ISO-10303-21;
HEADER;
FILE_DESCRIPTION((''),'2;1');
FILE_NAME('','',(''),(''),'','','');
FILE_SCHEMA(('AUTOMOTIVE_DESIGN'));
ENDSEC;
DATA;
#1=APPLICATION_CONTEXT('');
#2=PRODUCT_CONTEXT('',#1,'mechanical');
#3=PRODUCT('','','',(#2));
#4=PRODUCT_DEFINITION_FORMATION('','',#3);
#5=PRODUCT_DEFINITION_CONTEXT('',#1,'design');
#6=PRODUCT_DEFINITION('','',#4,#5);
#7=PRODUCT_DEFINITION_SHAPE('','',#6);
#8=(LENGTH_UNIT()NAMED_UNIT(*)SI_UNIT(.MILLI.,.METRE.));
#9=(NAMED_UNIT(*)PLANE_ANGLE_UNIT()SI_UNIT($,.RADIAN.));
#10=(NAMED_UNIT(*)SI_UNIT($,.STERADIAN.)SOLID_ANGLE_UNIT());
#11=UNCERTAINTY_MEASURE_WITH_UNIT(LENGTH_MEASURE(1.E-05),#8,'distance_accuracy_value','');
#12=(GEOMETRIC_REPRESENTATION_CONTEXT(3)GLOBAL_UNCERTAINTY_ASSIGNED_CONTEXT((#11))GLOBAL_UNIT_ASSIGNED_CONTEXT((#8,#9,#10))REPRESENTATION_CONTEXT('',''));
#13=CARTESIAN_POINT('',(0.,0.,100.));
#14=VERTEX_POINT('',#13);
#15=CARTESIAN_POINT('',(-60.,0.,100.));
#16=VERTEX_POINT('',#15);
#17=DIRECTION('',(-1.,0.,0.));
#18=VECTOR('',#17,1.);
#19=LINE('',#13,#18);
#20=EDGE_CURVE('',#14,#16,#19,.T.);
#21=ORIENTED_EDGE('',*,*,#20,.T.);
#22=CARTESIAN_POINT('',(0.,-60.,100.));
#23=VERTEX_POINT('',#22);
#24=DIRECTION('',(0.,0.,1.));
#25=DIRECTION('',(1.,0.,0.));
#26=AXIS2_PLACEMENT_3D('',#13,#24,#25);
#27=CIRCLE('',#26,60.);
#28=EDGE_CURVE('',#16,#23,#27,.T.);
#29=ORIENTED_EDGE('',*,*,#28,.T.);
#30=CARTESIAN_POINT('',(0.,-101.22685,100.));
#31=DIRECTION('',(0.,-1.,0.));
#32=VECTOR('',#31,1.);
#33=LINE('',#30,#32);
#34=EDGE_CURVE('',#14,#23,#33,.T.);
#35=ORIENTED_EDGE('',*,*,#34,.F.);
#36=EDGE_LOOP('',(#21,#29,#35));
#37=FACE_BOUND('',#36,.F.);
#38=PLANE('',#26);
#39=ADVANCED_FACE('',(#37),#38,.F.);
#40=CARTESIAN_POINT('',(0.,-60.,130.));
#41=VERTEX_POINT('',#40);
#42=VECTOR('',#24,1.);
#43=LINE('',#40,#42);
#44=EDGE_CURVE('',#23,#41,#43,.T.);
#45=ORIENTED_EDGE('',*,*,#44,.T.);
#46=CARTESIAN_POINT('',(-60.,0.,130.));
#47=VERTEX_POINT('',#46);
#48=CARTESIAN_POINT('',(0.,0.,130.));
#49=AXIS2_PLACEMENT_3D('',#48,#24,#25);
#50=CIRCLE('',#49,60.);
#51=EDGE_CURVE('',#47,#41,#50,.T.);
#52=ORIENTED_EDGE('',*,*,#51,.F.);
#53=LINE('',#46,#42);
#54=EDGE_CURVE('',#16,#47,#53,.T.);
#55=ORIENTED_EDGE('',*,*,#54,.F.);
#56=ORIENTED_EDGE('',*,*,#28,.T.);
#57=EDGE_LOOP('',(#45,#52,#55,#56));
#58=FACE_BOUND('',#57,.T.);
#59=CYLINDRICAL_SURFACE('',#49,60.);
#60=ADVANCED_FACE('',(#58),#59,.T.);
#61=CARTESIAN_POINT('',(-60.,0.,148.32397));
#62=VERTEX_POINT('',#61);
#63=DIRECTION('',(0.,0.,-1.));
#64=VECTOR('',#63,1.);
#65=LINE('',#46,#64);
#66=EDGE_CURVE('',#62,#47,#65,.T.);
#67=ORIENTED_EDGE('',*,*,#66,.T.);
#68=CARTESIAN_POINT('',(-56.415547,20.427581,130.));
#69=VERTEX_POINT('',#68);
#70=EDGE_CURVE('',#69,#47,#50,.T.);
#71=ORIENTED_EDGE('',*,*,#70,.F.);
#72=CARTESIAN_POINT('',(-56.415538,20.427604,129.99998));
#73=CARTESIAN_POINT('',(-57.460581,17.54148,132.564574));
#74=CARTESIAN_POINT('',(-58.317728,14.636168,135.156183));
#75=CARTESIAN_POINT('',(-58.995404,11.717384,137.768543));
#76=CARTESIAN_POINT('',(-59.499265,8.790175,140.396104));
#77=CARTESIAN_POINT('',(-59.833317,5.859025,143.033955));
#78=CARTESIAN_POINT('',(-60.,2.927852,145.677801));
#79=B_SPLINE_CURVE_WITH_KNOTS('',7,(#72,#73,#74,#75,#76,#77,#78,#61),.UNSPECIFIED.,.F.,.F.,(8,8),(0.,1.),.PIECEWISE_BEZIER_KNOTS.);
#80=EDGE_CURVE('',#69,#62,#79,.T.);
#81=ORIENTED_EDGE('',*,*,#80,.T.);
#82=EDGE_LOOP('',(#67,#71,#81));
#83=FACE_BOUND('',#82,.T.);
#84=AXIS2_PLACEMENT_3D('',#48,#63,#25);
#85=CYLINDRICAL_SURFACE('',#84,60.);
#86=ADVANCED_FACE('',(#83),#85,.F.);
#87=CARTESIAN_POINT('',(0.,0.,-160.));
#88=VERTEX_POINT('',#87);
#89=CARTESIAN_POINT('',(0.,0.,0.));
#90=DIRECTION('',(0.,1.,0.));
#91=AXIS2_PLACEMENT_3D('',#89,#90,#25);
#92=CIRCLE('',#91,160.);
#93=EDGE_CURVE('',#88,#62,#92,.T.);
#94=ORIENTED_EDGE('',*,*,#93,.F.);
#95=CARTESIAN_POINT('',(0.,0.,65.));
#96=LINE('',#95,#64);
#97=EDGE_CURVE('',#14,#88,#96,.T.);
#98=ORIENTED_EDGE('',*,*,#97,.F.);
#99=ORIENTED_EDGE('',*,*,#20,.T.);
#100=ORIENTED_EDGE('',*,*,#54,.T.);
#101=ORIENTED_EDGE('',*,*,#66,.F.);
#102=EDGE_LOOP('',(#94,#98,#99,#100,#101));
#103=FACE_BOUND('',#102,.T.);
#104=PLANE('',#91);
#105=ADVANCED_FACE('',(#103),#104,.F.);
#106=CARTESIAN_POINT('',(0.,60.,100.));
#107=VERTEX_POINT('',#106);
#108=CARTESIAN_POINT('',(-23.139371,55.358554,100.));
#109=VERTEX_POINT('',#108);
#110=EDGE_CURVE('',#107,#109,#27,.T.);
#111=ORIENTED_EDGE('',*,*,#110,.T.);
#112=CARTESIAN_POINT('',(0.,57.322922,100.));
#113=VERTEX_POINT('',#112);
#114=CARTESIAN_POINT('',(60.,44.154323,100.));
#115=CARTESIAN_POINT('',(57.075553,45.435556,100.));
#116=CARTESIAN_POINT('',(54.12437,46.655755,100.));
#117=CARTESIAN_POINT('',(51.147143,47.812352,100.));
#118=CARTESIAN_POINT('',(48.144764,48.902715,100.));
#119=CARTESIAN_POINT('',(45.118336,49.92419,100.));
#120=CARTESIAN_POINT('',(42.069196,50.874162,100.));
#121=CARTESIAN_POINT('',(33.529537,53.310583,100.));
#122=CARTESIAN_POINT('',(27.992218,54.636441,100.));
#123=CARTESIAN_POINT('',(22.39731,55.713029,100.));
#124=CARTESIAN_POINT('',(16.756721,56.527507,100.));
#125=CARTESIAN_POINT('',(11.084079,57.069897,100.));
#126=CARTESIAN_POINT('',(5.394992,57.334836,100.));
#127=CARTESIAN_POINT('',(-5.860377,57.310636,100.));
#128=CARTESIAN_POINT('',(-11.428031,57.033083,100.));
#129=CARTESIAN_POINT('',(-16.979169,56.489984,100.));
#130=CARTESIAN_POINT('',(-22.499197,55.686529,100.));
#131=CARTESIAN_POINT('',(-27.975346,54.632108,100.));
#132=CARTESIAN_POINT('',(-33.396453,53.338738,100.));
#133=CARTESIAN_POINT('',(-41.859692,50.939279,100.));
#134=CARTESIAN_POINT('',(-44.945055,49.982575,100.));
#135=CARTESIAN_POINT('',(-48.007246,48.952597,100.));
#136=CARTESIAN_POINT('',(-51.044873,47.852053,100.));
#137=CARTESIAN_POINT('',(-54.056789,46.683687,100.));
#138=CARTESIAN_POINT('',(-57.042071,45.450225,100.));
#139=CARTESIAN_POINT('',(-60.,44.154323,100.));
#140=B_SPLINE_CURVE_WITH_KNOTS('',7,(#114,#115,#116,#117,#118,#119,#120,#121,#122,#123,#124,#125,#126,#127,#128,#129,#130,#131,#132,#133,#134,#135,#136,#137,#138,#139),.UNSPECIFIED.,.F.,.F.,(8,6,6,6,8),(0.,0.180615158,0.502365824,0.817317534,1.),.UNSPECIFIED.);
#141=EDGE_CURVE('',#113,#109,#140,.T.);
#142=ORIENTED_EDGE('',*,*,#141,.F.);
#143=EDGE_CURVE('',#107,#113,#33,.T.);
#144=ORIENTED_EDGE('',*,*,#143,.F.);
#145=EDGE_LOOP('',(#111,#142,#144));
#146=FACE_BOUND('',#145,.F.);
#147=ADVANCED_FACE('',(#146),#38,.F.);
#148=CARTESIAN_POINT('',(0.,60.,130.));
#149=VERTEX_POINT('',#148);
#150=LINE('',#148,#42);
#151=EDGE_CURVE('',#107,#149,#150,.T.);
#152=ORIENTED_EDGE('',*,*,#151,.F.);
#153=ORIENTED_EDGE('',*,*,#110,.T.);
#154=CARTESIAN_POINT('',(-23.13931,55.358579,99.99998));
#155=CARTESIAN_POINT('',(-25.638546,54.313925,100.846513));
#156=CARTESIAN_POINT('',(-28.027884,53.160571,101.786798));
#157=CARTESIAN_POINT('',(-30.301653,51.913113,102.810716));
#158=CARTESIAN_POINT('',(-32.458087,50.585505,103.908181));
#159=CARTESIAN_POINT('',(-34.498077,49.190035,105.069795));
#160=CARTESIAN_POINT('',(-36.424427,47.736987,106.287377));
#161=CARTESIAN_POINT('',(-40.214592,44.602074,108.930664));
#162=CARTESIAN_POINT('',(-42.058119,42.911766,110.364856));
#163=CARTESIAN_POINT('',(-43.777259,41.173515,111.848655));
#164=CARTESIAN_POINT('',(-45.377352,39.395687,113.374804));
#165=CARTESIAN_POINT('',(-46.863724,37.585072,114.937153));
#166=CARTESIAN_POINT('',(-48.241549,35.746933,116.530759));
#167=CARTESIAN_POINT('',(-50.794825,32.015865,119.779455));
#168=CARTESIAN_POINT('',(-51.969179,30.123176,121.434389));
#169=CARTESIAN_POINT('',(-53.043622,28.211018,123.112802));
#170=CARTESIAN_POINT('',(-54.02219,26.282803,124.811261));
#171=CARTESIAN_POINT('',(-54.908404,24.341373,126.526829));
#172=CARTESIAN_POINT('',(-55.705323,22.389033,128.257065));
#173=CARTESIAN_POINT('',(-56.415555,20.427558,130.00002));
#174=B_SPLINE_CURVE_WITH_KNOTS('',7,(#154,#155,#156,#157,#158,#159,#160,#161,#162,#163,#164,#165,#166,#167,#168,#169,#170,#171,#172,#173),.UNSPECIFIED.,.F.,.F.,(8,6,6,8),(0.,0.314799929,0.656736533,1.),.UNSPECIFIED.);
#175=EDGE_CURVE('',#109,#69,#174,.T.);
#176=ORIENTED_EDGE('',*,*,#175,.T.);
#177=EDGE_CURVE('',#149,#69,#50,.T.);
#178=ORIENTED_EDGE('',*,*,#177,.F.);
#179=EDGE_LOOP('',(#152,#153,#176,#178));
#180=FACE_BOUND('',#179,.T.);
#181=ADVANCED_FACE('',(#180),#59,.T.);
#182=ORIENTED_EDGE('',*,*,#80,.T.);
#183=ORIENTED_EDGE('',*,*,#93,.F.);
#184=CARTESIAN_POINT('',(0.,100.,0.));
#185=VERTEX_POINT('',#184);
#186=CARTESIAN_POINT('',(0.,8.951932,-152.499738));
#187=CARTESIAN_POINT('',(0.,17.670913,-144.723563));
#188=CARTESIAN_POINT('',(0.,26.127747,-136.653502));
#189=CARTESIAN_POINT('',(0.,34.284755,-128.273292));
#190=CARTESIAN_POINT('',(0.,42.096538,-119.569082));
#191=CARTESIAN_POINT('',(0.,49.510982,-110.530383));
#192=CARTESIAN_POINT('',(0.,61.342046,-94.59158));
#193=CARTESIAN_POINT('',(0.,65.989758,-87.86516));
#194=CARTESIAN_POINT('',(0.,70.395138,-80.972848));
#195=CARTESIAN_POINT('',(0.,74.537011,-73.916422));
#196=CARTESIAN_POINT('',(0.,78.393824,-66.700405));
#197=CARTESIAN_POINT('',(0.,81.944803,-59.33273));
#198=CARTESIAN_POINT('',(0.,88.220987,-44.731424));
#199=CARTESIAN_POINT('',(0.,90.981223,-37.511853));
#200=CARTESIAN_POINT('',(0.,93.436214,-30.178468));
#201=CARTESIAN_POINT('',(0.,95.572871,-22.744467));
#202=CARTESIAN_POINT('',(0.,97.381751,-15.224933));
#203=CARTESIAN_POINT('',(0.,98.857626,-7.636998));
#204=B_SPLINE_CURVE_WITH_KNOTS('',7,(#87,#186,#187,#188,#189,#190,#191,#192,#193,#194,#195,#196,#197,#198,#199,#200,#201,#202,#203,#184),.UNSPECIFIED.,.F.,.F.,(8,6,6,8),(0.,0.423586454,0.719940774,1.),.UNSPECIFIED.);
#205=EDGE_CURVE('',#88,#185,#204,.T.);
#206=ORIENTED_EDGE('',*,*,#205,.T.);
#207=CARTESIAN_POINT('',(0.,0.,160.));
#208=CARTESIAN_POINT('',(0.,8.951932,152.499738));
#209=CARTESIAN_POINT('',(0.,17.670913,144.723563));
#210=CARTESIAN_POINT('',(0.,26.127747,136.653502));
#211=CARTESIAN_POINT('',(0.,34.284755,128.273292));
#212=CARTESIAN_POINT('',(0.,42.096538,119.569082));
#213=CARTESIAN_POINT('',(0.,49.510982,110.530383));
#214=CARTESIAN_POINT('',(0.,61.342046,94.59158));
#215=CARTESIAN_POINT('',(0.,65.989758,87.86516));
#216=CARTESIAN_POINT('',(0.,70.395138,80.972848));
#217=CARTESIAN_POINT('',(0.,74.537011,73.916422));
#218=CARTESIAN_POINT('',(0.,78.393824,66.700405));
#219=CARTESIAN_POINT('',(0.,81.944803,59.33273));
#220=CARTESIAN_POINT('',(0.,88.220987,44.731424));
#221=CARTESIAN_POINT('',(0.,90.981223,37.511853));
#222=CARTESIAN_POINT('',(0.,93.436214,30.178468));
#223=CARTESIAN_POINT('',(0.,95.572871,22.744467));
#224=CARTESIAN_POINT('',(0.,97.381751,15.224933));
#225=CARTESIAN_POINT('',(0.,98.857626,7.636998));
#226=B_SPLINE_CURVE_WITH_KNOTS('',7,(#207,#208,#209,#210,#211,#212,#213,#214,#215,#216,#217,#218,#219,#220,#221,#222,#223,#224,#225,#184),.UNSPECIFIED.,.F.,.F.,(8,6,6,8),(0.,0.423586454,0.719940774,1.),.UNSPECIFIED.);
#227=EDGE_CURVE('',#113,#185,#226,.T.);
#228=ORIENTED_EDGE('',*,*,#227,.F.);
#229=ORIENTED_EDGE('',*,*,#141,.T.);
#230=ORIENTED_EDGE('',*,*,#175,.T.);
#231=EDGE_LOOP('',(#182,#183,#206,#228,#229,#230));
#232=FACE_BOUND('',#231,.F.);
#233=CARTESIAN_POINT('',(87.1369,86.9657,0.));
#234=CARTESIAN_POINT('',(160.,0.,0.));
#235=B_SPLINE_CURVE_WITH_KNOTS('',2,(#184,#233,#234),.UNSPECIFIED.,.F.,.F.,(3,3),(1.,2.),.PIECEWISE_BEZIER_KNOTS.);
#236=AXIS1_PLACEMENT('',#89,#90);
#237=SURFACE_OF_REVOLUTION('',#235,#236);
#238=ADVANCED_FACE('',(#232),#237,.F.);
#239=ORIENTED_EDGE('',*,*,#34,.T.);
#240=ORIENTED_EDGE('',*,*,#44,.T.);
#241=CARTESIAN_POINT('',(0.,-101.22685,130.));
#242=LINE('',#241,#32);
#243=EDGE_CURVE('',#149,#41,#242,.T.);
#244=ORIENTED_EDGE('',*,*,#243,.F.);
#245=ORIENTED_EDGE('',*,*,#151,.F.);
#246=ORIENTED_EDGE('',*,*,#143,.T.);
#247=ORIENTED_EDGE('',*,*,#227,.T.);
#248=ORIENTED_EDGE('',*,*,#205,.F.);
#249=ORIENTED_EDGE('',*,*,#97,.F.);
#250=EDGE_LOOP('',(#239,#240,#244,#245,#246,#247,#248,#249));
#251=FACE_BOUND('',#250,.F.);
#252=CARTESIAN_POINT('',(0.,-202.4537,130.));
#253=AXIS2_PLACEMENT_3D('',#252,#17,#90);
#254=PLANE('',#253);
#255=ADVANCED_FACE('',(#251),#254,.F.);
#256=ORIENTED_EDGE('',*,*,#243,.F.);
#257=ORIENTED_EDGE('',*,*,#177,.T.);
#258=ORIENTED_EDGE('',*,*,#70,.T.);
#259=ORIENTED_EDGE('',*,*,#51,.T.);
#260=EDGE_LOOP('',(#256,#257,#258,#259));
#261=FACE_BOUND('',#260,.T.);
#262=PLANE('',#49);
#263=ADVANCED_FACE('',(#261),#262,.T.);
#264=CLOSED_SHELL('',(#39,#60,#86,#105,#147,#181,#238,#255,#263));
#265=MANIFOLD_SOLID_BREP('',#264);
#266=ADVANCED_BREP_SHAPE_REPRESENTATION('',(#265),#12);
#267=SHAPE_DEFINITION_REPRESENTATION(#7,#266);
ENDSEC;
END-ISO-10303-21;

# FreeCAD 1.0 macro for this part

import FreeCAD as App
import Part
import Sketcher

V = App.Vector
Q = App.Units.Quantity


def add_polygon(sketch, points):
    """Adds a closed chain of lines whose ends are joined by coincident constraints."""
    first, n = sketch.GeometryCount, len(points)
    for a, b in zip(points, points[1:] + points[:1]):
        sketch.addGeometry(Part.LineSegment(App.Vector(*a, 0), App.Vector(*b, 0)), False)
    for i in range(n):
        sketch.addConstraint(Sketcher.Constraint("Coincident", first + i, 2, first + (i + 1) % n, 1))

doc = App.newDocument("Part")
body = doc.addObject("PartDesign::Body", "Body")

sketch1 = body.newObject("Sketcher::SketchObject", "Sketch")
sketch1.AttachmentSupport = (doc.getObject("XY_Plane"), [""])
sketch1.MapMode = "FlatFace"
sketch1.addGeometry([
    Part.BSplineCurve([V(0, 100, 0), V(87.1369, 86.9657, 0), V(160, 0, 0)], [3, 3], [1, 2], False, 2, [1, 1, 1], False),
    Part.LineSegment(V(0, 100, 0), V(0, 0, 0)),
    Part.LineSegment(V(0, 0, 0), V(160, 0, 0)),
], False)
sketch1.addConstraint([
    Sketcher.Constraint("Block", 0),
    Sketcher.Constraint("Coincident", 0, 1, 1, 1),
    Sketcher.Constraint("Coincident", 1, 2, 2, 1),
    Sketcher.Constraint("Coincident", 2, 2, 0, 2),
    Sketcher.Constraint("Vertical", 1),
    Sketcher.Constraint("Horizontal", 2),
])
revolution = body.newObject("PartDesign::Revolution", "Revolution")
revolution.Profile = sketch1
revolution.ReferenceAxis = (sketch1, ["V_Axis"])
revolution.Angle = 360

sketch2 = body.newObject("Sketcher::SketchObject", "Sketch001")
sketch2.AttachmentSupport = (doc.getObject("XY_Plane"), [""])
sketch2.MapMode = "FlatFace"
sketch2.AttachmentOffset = App.Placement(V(0, 0, 130), App.Rotation())
sketch2.addGeometry(Part.Circle(V(0, 0, 0), V(0, 0, 1), 60), False)
sketch2.addConstraint([
    Sketcher.Constraint("Coincident", 0, 3, -1, 1),
    Sketcher.Constraint("Diameter", 0, Q("120 mm")),
])
pad1 = body.newObject("PartDesign::Pad", "Pad")
pad1.Profile = sketch2
pad1.Length = 30
pad1.Reversed = True

sketch3 = body.newObject("Sketcher::SketchObject", "Sketch002")
sketch3.AttachmentSupport = (doc.getObject("XY_Plane"), [""])
sketch3.MapMode = "FlatFace"
sketch3.AttachmentOffset = App.Placement(V(0, 0, 130), App.Rotation())
sketch3.addGeometry(Part.Circle(V(0, 0, 0), V(0, 0, 1), 60), False)
sketch3.addConstraint([
    Sketcher.Constraint("Coincident", 0, 3, -1, 1),
    Sketcher.Constraint("Diameter", 0, Q("120 mm")),
])
pocket1 = body.newObject("PartDesign::Pocket", "Pocket")
pocket1.Profile = sketch3
pocket1.Length = 30
pocket1.Reversed = True

sketch4 = body.newObject("Sketcher::SketchObject", "Sketch003")
sketch4.AttachmentSupport = (doc.getObject("XY_Plane"), [""])
sketch4.MapMode = "FlatFace"
sketch4.AttachmentOffset = App.Placement(V(0, 0, 130), App.Rotation())
add_polygon(sketch4, [(175.5316, 105.5344), (0, 105.5344), (0, -202.4537), (175.5316, -202.4537)])
sketch4.addConstraint([
    Sketcher.Constraint("Horizontal", 0),
    Sketcher.Constraint("Vertical", 1),
    Sketcher.Constraint("Horizontal", 2),
    Sketcher.Constraint("Vertical", 3),
    Sketcher.Constraint("PointOnObject", 0, 2, -2),
    Sketcher.Constraint("DistanceY", 1, 2, 1, 1, Q("307.988 mm")),
    Sketcher.Constraint("DistanceX", 0, 2, 0, 1, Q("175.5316 mm")),
    Sketcher.Constraint("DistanceY", -1, 1, 0, 2, Q("105.5344 mm")),
])
pocket2 = body.newObject("PartDesign::Pocket", "Pocket001")
pocket2.Profile = sketch4
pocket2.Length = 800
pocket2.Midplane = True

doc.recompute()
